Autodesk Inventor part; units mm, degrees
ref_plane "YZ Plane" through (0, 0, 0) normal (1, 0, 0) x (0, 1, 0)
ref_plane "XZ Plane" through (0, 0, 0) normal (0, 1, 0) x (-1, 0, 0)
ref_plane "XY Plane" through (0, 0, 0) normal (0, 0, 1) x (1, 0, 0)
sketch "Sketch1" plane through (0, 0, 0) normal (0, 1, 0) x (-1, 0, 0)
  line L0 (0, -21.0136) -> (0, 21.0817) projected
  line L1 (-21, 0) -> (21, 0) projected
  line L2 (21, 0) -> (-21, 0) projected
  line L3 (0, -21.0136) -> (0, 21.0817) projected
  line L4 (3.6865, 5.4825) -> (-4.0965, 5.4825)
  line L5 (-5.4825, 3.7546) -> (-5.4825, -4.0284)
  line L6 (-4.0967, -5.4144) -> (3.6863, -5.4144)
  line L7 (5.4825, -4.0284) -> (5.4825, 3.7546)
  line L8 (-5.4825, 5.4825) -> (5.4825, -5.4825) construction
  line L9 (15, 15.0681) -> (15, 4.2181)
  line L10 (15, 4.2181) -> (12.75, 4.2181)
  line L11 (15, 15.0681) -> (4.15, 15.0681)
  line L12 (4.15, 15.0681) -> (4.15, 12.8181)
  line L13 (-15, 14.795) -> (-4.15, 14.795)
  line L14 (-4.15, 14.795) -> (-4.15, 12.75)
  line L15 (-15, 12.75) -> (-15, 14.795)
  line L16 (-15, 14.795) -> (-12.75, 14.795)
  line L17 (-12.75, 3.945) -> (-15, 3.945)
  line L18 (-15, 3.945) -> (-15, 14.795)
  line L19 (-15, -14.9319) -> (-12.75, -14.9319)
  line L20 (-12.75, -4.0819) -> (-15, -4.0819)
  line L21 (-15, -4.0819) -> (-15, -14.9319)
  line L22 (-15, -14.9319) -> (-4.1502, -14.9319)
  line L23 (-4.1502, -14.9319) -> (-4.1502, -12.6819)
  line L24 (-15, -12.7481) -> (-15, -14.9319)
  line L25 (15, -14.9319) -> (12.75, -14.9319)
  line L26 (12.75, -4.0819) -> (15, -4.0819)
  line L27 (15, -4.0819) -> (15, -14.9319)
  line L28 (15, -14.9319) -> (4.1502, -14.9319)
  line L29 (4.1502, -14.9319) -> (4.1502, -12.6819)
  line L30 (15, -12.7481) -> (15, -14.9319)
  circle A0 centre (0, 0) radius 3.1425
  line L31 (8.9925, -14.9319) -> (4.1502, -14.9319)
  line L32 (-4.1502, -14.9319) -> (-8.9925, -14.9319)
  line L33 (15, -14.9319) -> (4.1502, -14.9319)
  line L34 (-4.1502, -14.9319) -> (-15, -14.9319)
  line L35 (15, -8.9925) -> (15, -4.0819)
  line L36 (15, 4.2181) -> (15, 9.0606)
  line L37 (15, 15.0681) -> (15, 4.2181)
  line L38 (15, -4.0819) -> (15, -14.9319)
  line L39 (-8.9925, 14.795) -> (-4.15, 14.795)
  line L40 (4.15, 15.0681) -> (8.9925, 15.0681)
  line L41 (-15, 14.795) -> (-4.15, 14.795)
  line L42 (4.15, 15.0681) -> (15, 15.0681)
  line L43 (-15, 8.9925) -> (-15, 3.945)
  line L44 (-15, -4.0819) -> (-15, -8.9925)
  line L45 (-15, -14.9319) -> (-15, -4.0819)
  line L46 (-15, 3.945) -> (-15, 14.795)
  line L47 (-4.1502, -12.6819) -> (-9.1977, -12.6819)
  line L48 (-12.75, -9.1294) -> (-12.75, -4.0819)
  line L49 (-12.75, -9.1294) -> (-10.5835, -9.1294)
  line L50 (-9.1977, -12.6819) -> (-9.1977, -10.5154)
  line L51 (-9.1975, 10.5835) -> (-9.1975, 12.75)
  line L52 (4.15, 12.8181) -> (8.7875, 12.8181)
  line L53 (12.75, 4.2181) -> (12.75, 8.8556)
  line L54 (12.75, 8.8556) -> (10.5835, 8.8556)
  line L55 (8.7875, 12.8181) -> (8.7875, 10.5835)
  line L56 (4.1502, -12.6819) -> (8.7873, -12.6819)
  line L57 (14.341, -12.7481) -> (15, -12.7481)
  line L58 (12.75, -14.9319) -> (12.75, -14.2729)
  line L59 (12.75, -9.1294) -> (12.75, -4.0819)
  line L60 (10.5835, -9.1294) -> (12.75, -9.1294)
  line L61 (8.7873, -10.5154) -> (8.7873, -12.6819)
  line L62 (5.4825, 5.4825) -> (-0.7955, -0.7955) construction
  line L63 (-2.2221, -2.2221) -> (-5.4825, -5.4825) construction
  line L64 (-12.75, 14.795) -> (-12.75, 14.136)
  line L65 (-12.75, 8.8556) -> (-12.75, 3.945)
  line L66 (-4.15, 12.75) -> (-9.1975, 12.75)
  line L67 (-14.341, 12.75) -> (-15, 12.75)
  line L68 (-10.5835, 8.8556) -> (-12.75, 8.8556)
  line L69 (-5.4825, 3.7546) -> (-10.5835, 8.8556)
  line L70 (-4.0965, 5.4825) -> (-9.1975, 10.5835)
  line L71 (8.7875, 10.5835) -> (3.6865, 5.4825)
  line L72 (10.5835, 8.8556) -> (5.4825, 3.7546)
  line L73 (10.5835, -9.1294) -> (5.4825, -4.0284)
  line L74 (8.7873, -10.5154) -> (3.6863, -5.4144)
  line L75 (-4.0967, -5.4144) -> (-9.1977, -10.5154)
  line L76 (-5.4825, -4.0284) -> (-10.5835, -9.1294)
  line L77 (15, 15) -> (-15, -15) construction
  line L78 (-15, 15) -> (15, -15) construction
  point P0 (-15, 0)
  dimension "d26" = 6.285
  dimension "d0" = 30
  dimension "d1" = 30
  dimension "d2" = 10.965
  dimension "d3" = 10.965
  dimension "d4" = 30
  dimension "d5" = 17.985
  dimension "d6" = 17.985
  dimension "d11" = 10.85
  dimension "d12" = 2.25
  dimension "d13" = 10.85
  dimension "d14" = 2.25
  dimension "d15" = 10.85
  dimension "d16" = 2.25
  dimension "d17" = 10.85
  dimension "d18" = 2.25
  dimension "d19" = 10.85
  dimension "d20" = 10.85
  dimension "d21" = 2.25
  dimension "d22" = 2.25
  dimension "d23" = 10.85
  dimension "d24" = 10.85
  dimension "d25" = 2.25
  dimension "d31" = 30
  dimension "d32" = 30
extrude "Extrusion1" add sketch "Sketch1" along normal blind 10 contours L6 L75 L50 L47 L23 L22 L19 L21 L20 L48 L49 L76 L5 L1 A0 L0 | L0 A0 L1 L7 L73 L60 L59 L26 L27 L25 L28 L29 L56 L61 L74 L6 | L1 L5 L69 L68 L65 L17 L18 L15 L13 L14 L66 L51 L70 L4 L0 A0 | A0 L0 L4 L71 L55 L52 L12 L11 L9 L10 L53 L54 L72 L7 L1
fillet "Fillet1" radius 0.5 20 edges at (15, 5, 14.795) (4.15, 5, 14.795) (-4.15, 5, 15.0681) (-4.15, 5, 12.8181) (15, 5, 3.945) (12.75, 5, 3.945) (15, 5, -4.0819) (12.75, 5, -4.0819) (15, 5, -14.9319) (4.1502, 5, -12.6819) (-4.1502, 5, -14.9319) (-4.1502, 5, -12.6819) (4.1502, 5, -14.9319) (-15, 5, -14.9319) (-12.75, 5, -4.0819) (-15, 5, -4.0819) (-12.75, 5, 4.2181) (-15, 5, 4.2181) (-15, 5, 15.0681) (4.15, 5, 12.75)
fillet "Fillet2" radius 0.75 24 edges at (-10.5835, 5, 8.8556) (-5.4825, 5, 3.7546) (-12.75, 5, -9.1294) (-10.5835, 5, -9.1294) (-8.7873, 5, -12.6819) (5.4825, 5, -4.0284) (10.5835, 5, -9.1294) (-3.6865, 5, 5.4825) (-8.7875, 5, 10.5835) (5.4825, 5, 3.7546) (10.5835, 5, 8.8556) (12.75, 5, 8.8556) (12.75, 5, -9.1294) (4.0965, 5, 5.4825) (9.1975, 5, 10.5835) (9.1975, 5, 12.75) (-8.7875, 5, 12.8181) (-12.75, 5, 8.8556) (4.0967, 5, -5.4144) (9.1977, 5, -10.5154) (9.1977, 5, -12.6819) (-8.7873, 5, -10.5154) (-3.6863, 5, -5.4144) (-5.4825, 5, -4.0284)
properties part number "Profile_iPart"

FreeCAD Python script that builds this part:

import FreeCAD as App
import Part
import Sketcher

V = App.Vector


def edges_at(feature, points):
    """Names of the edges that pass closest to the given points."""
    edges = feature.Shape.Edges
    near = lambda p: min(range(len(edges)), key=lambda i: edges[i].distToShape(Part.Vertex(*p))[0])
    return sorted({f"Edge{near(p) + 1}" for p in points})

doc = App.newDocument("Part")
body = doc.addObject("PartDesign::Body", "Body")

sketch1 = body.newObject("Sketcher::SketchObject", "Sketch")
sketch1.AttachmentSupport = (doc.getObject("XZ_Plane"), [""])
sketch1.MapMode = "FlatFace"
sketch1.addGeometry([
    Part.LineSegment(V(4.1, -5.4, 0), V(-3.7, -5.4, 0)),
    Part.LineSegment(V(-3.7, -5.4, 0), V(-8.8, -10.5, 0)),
    Part.LineSegment(V(-8.8, -10.5, 0), V(-8.8, -12.7, 0)),
    Part.LineSegment(V(-8.8, -12.7, 0), V(-4.2, -12.7, 0)),
    Part.LineSegment(V(-4.2, -12.7, 0), V(-4.2, -14.9, 0)),
    Part.LineSegment(V(-4.2, -14.9, 0), V(-15, -14.9, 0)),
    Part.LineSegment(V(-15, -14.9, 0), V(-15, -4.1, 0)),
    Part.LineSegment(V(-15, -4.1, 0), V(-12.8, -4.1, 0)),
    Part.LineSegment(V(-12.8, -4.1, 0), V(-12.8, -9.1, 0)),
    Part.LineSegment(V(-12.8, -9.1, 0), V(-10.6, -9.1, 0)),
    Part.LineSegment(V(-10.6, -9.1, 0), V(-5.5, -4, 0)),
    Part.LineSegment(V(-5.5, -4, 0), V(-5.5, 3.8, 0)),
    Part.LineSegment(V(-5.5, 3.8, 0), V(-10.6, 8.9, 0)),
    Part.LineSegment(V(-10.6, 8.9, 0), V(-12.8, 8.9, 0)),
    Part.LineSegment(V(-12.8, 8.9, 0), V(-12.8, 4.2, 0)),
    Part.LineSegment(V(-12.8, 4.2, 0), V(-15, 4.2, 0)),
    Part.LineSegment(V(-15, 4.2, 0), V(-15, 15.1, 0)),
    Part.LineSegment(V(-15, 15.1, 0), V(-4.2, 15.1, 0)),
    Part.LineSegment(V(-4.2, 15.1, 0), V(-4.2, 12.8, 0)),
    Part.LineSegment(V(-4.2, 12.8, 0), V(-8.8, 12.8, 0)),
    Part.LineSegment(V(-8.8, 12.8, 0), V(-8.8, 10.6, 0)),
    Part.LineSegment(V(-8.8, 10.6, 0), V(-3.7, 5.5, 0)),
    Part.LineSegment(V(-3.7, 5.5, 0), V(4.1, 5.5, 0)),
    Part.LineSegment(V(4.1, 5.5, 0), V(9.2, 10.6, 0)),
    Part.LineSegment(V(9.2, 10.6, 0), V(9.2, 12.8, 0)),
    Part.LineSegment(V(9.2, 12.8, 0), V(4.2, 12.8, 0)),
    Part.LineSegment(V(4.2, 12.8, 0), V(4.2, 14.8, 0)),
    Part.LineSegment(V(4.2, 14.8, 0), V(15, 14.8, 0)),
    Part.LineSegment(V(15, 14.8, 0), V(15, 3.9, 0)),
    Part.LineSegment(V(15, 3.9, 0), V(12.8, 3.9, 0)),
    Part.LineSegment(V(12.8, 3.9, 0), V(12.8, 8.9, 0)),
    Part.LineSegment(V(12.8, 8.9, 0), V(10.6, 8.9, 0)),
    Part.LineSegment(V(10.6, 8.9, 0), V(5.5, 3.8, 0)),
    Part.LineSegment(V(5.5, 3.8, 0), V(5.5, -4, 0)),
    Part.LineSegment(V(5.5, -4, 0), V(10.6, -9.1, 0)),
    Part.LineSegment(V(10.6, -9.1, 0), V(12.8, -9.1, 0)),
    Part.LineSegment(V(12.8, -9.1, 0), V(12.8, -4.1, 0)),
    Part.LineSegment(V(12.8, -4.1, 0), V(15, -4.1, 0)),
    Part.LineSegment(V(15, -4.1, 0), V(15, -14.9, 0)),
    Part.LineSegment(V(15, -14.9, 0), V(4.2, -14.9, 0)),
    Part.LineSegment(V(4.2, -14.9, 0), V(4.2, -12.7, 0)),
    Part.LineSegment(V(4.2, -12.7, 0), V(9.2, -12.7, 0)),
    Part.LineSegment(V(9.2, -12.7, 0), V(9.2, -10.5, 0)),
    Part.LineSegment(V(9.2, -10.5, 0), V(4.1, -5.4, 0)),
    Part.Circle(V(0, 0, 0), V(0, 0, 1), 3.1),
], False)
sketch1.addConstraint([
    Sketcher.Constraint("Coincident", 0, 2, 1, 1),
    Sketcher.Constraint("Coincident", 1, 2, 2, 1),
    Sketcher.Constraint("Coincident", 2, 2, 3, 1),
    Sketcher.Constraint("Coincident", 3, 2, 4, 1),
    Sketcher.Constraint("Coincident", 4, 2, 5, 1),
    Sketcher.Constraint("Coincident", 5, 2, 6, 1),
    Sketcher.Constraint("Coincident", 6, 2, 7, 1),
    Sketcher.Constraint("Coincident", 7, 2, 8, 1),
    Sketcher.Constraint("Coincident", 8, 2, 9, 1),
    Sketcher.Constraint("Coincident", 9, 2, 10, 1),
    Sketcher.Constraint("Coincident", 10, 2, 11, 1),
    Sketcher.Constraint("Coincident", 11, 2, 12, 1),
    Sketcher.Constraint("Coincident", 12, 2, 13, 1),
    Sketcher.Constraint("Coincident", 13, 2, 14, 1),
    Sketcher.Constraint("Coincident", 14, 2, 15, 1),
    Sketcher.Constraint("Coincident", 15, 2, 16, 1),
    Sketcher.Constraint("Coincident", 16, 2, 17, 1),
    Sketcher.Constraint("Coincident", 17, 2, 18, 1),
    Sketcher.Constraint("Coincident", 18, 2, 19, 1),
    Sketcher.Constraint("Coincident", 19, 2, 20, 1),
    Sketcher.Constraint("Coincident", 20, 2, 21, 1),
    Sketcher.Constraint("Coincident", 21, 2, 22, 1),
    Sketcher.Constraint("Coincident", 22, 2, 23, 1),
    Sketcher.Constraint("Coincident", 23, 2, 24, 1),
    Sketcher.Constraint("Coincident", 24, 2, 25, 1),
    Sketcher.Constraint("Coincident", 25, 2, 26, 1),
    Sketcher.Constraint("Coincident", 26, 2, 27, 1),
    Sketcher.Constraint("Coincident", 27, 2, 28, 1),
    Sketcher.Constraint("Coincident", 28, 2, 29, 1),
    Sketcher.Constraint("Coincident", 29, 2, 30, 1),
    Sketcher.Constraint("Coincident", 30, 2, 31, 1),
    Sketcher.Constraint("Coincident", 31, 2, 32, 1),
    Sketcher.Constraint("Coincident", 32, 2, 33, 1),
    Sketcher.Constraint("Coincident", 33, 2, 34, 1),
    Sketcher.Constraint("Coincident", 34, 2, 35, 1),
    Sketcher.Constraint("Coincident", 35, 2, 36, 1),
    Sketcher.Constraint("Coincident", 36, 2, 37, 1),
    Sketcher.Constraint("Coincident", 37, 2, 38, 1),
    Sketcher.Constraint("Coincident", 38, 2, 39, 1),
    Sketcher.Constraint("Coincident", 39, 2, 40, 1),
    Sketcher.Constraint("Coincident", 40, 2, 41, 1),
    Sketcher.Constraint("Coincident", 41, 2, 42, 1),
    Sketcher.Constraint("Coincident", 42, 2, 43, 1),
    Sketcher.Constraint("Coincident", 43, 2, 0, 1),
    Sketcher.Constraint("Horizontal", 0),
    Sketcher.Constraint("Vertical", 2),
    Sketcher.Constraint("Horizontal", 3),
    Sketcher.Constraint("Vertical", 4),
    Sketcher.Constraint("Horizontal", 5),
    Sketcher.Constraint("Vertical", 6),
    Sketcher.Constraint("Horizontal", 7),
    Sketcher.Constraint("Vertical", 8),
    Sketcher.Constraint("Horizontal", 9),
    Sketcher.Constraint("Vertical", 11),
    Sketcher.Constraint("Horizontal", 13),
    Sketcher.Constraint("Vertical", 14),
    Sketcher.Constraint("Horizontal", 15),
    Sketcher.Constraint("Vertical", 16),
    Sketcher.Constraint("Horizontal", 17),
    Sketcher.Constraint("Vertical", 18),
    Sketcher.Constraint("Horizontal", 19),
    Sketcher.Constraint("Vertical", 20),
    Sketcher.Constraint("Horizontal", 22),
    Sketcher.Constraint("Vertical", 24),
    Sketcher.Constraint("Horizontal", 25),
    Sketcher.Constraint("Vertical", 26),
    Sketcher.Constraint("Horizontal", 27),
    Sketcher.Constraint("Vertical", 28),
    Sketcher.Constraint("Horizontal", 29),
    Sketcher.Constraint("Vertical", 30),
    Sketcher.Constraint("Horizontal", 31),
    Sketcher.Constraint("Vertical", 33),
    Sketcher.Constraint("Horizontal", 35),
    Sketcher.Constraint("Vertical", 36),
    Sketcher.Constraint("Horizontal", 37),
    Sketcher.Constraint("Vertical", 38),
    Sketcher.Constraint("Horizontal", 39),
    Sketcher.Constraint("Vertical", 40),
    Sketcher.Constraint("Horizontal", 41),
    Sketcher.Constraint("Vertical", 42),
    Sketcher.Constraint("Coincident", 44, 3, -1, 1),
    Sketcher.Constraint("Symmetric", 13, 2, 30, 2, -2),
    Sketcher.Constraint("Symmetric", 11, 2, 32, 2, -2),
    Sketcher.Constraint("Symmetric", 9, 2, 34, 2, -2),
    Sketcher.Constraint("Symmetric", 7, 2, 36, 2, -2),
    Sketcher.Constraint("Symmetric", 5, 2, 38, 2, -2),
    Sketcher.Constraint("Symmetric", 3, 2, 40, 2, -2),
    Sketcher.Constraint("Parallel", 1, 10),
    Sketcher.Constraint("Perpendicular", 10, 12),
    Sketcher.Constraint("Parallel", 12, 21),
    Sketcher.Constraint("Perpendicular", 21, 23),
    Sketcher.Constraint("Parallel", 23, 32),
    Sketcher.Constraint("Perpendicular", 32, 34),
    Sketcher.Constraint("Parallel", 34, 43),
    Sketcher.Constraint("Horizontal", 20, 2, 23, 2),
    Sketcher.Constraint("Horizontal", 10, 2, 33, 2),
    Sketcher.Constraint("Horizontal", 1, 2, 42, 2),
    Sketcher.Constraint("Vertical", 9, 2, 12, 2),
    Sketcher.Constraint("Vertical", 8, 2, 13, 2),
    Sketcher.Constraint("Vertical", 6, 2, 15, 2),
    Sketcher.Constraint("Vertical", 4, 2, 17, 2),
    Sketcher.Constraint("Vertical", 2, 2, 19, 2),
    Sketcher.Constraint("Vertical", 0, 2, 21, 2),
    Sketcher.Constraint("Vertical", 28, 2, 37, 2),
    Sketcher.Constraint("Vertical", 26, 2, 39, 2),
    Sketcher.Constraint("Vertical", 24, 2, 41, 2),
    Sketcher.Constraint("Equal", 35, 2),
    Sketcher.Constraint("Equal", 37, 4),
    Sketcher.Constraint("Equal", 27, 6),
    Sketcher.Constraint("Equal", 41, 8),
    Sketcher.Constraint("Equal", 22, 11),
    Sketcher.Constraint("Equal", 19, 14),
    Sketcher.Constraint("Equal", 6, 16),
    Sketcher.Constraint("Equal", 4, 18),
    Sketcher.Constraint("Equal", 2, 24),
    Sketcher.Constraint("Equal", 16, 28),
    Sketcher.Constraint("Equal", 1, 10),
    Sketcher.Constraint("Diameter", 44, 6.285),
    Sketcher.Constraint("DistanceX", 7, 1, 7, 2, 2.25),
    Sketcher.Constraint("DistanceX", 17, 1, 17, 2, 10.85),
    Sketcher.Constraint("DistanceX", 5, 2, -1, 1, 15.0),
    Sketcher.Constraint("DistanceX", 0, 2, 0, 1, 7.783),
    Sketcher.Constraint("DistanceX", 3, 1, 3, 2, 4.637),
    Sketcher.Constraint("DistanceY", 26, 1, 26, 2, 2.045),
    Sketcher.Constraint("DistanceY", -1, 1, 24, 2, 12.75),
    Sketcher.Constraint("Distance", 1, 7.214),
    Sketcher.Constraint("DistanceX", 9, 1, 9, 2, 2.1665),
    Sketcher.Constraint("DistanceY", 20, 2, 20, 1, 2.2346),
])
pad1 = body.newObject("PartDesign::Pad", "Pad")
pad1.Profile = sketch1
pad1.Length = 10
pad1.Reversed = True
doc.recompute()

fillet = body.newObject("PartDesign::Fillet", "Fillet")
fillet.Base = (pad1, edges_at(pad1, [
    (15, 5, 14.795),
    (4.15, 5, 14.795),
    (-4.15, 5, 15.068),
    (-4.15, 5, 12.818),
    (15, 5, 3.945),
    (12.75, 5, 3.945),
    (15, 5, -4.082),
    (12.75, 5, -4.082),
    (15, 5, -14.932),
    (4.15, 5, -12.682),
    (-4.15, 5, -14.932),
    (-4.15, 5, -12.682),
    (4.15, 5, -14.932),
    (-15, 5, -14.932),
    (-12.75, 5, -4.082),
    (-15, 5, -4.082),
    (-12.75, 5, 4.218),
    (-15, 5, 4.218),
    (-15, 5, 15.068),
    (4.15, 5, 12.75),
]))
fillet.Radius = 0.5
doc.recompute()

fillet2 = body.newObject("PartDesign::Fillet", "Fillet001")
fillet2.Base = (fillet, edges_at(fillet, [
    (-10.584, 5, 8.856),
    (-5.482, 5, 3.755),
    (-12.75, 5, -9.129),
    (-10.584, 5, -9.129),
    (-8.787, 5, -12.682),
    (5.482, 5, -4.028),
    (10.584, 5, -9.129),
    (-3.687, 5, 5.482),
    (-8.787, 5, 10.584),
    (5.482, 5, 3.755),
    (10.584, 5, 8.856),
    (12.75, 5, 8.856),
    (12.75, 5, -9.129),
    (4.096, 5, 5.482),
    (9.197, 5, 10.584),
    (9.197, 5, 12.75),
    (-8.787, 5, 12.818),
    (-12.75, 5, 8.856),
    (4.097, 5, -5.414),
    (9.198, 5, -10.515),
    (9.198, 5, -12.682),
    (-8.787, 5, -10.515),
    (-3.686, 5, -5.414),
    (-5.482, 5, -4.028),
]))
fillet2.Radius = 0.75

doc.recompute()
